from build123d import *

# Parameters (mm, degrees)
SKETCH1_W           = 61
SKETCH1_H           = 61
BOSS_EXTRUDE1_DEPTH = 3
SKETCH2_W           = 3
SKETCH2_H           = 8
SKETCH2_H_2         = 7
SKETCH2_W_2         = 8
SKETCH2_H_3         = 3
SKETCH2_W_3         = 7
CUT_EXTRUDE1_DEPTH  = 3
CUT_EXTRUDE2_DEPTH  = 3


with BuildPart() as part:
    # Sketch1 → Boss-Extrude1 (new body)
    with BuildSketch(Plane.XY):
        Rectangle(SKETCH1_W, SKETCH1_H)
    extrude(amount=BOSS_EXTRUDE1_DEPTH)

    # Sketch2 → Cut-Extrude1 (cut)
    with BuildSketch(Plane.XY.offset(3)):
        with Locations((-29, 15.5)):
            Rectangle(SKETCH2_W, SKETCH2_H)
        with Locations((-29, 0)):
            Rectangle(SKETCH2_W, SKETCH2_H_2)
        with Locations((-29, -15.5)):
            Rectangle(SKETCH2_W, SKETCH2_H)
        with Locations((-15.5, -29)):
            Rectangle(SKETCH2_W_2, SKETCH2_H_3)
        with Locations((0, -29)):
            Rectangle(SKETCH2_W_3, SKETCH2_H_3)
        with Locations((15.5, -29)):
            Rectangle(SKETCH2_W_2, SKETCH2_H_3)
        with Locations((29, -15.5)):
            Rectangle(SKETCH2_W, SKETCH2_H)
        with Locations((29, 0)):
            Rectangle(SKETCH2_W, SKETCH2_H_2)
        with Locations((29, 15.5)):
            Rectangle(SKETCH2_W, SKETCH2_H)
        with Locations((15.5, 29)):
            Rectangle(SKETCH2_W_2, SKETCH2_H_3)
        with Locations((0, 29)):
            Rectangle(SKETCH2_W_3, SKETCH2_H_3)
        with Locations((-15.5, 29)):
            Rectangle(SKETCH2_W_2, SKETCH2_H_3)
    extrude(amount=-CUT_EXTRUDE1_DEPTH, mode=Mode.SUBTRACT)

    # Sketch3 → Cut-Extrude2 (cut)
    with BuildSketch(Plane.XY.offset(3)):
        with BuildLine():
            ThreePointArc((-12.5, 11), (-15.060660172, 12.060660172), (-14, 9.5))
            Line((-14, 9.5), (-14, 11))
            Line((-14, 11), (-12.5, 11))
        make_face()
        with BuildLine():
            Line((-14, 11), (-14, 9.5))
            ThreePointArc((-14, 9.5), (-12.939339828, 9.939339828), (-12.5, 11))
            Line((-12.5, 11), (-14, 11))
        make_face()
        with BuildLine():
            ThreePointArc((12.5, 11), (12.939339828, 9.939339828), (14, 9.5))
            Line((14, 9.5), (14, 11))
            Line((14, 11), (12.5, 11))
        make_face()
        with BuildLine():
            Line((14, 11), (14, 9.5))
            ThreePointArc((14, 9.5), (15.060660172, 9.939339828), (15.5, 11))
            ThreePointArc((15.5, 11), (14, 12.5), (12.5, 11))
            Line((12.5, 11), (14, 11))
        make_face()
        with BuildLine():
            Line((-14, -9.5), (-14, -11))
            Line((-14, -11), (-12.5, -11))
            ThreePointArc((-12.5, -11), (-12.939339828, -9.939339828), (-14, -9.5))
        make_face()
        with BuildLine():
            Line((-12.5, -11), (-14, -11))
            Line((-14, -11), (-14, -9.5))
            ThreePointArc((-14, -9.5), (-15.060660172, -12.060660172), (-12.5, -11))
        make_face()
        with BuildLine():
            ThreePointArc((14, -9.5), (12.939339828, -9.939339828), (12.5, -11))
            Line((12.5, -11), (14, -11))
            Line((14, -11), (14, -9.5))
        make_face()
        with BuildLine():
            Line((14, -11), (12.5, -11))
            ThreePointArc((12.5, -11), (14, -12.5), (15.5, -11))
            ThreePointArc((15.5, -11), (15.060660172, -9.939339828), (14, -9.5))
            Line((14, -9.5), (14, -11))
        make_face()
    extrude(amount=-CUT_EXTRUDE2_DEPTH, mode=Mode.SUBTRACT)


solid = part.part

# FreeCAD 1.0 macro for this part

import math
import FreeCAD as App
import Part
import Sketcher
from FreeCAD import Vector
Q = App.Units.Quantity


def add_polygon(sketch, points):
    """Adds a closed chain of lines whose ends are joined by coincident constraints."""
    first, n = sketch.GeometryCount, len(points)
    for a, b in zip(points, points[1:] + points[:1]):
        sketch.addGeometry(Part.LineSegment(App.Vector(*a, 0), App.Vector(*b, 0)), False)
    for i in range(n):
        sketch.addConstraint(Sketcher.Constraint("Coincident", first + i, 2, first + (i + 1) % n, 1))

doc = App.newDocument("Part")
params = doc.addObject("Spreadsheet::Sheet", "Params")
for row, (alias, value) in enumerate([
    ("sketch1_width", "61 mm"),
    ("pad1_length", "3 mm"),
    ("sketch2_width", "3 mm"),
    ("sketch2_width2", "8 mm"),
    ("sketch2_width3", "7 mm"),
    ("pocket1_length", "3 mm"),
    ("sketch3_radius", "1.5 mm"),
    ("pocket2_length", "3 mm"),
], start=1):
    params.set(f"A{row}", alias)
    params.set(f"B{row}", "=" + value)
    params.setAlias(f"B{row}", alias)

body = doc.addObject("PartDesign::Body", "Body")

# Sketch on XY plane
sketch1 = doc.addObject("Sketcher::SketchObject", "Sketch")
body.addObject(sketch1)
sketch1.AttachmentSupport = (doc.XY_Plane, [""])
sketch1.MapMode = "FlatFace"
add_polygon(sketch1, [(-30, 30), (-30, -30), (30, -30), (30, 30)])  # lines 0-3
sketch1.addConstraint(Sketcher.Constraint("Vertical", 0))
sketch1.addConstraint(Sketcher.Constraint("Horizontal", 1))
sketch1.addConstraint(Sketcher.Constraint("Vertical", 2))
sketch1.addConstraint(Sketcher.Constraint("Horizontal", 3))
sketch1.addConstraint(Sketcher.Constraint("Symmetric", 0, 2, 2, 2, -1, 1))
sketch1.addConstraint(Sketcher.Constraint("Equal", 3, 0))
sketch1.addConstraint(Sketcher.Constraint("DistanceX", 1, 1, 1, 2, Q("61 mm")))
sketch1.setExpression("Constraints[10]", "Params.sketch1_width")
pad1 = doc.addObject("PartDesign::Pad", "Pad")
body.addObject(pad1)
pad1.Profile = sketch1
pad1.setExpression("Length", "Params.pad1_length")

# Sketch on XY plane
sketch2 = doc.addObject("Sketcher::SketchObject", "Sketch001")
body.addObject(sketch2)
sketch2.AttachmentSupport = (doc.XY_Plane, [""])
sketch2.MapMode = "FlatFace"
sketch2.AttachmentOffset = App.Placement(Vector(0, 0, 3), App.Rotation())
add_polygon(sketch2, [(-30.5, 19.5), (-30.5, 11.5), (-27.5, 11.5), (-27.5, 19.5)])  # lines 0-3
add_polygon(sketch2, [(-30.5, 3.5), (-30.5, -3.5), (-27.5, -3.5), (-27.5, 3.5)])  # lines 4-7
add_polygon(sketch2, [(-30.5, -11.5), (-30.5, -19.5), (-27.5, -19.5), (-27.5, -11.5)])  # lines 8-11
add_polygon(sketch2, [(-19.5, -27.5), (-19.5, -30.5), (-11.5, -30.5), (-11.5, -27.5)])  # lines 12-15
add_polygon(sketch2, [(-3.5, -27.5), (-3.5, -30.5), (3.5, -30.5), (3.5, -27.5)])  # lines 16-19
add_polygon(sketch2, [(11.5, -27.5), (11.5, -30.5), (19.5, -30.5), (19.5, -27.5)])  # lines 20-23
add_polygon(sketch2, [(27.5, -11.5), (27.5, -19.5), (30.5, -19.5), (30.5, -11.5)])  # lines 24-27
add_polygon(sketch2, [(27.5, 3.5), (27.5, -3.5), (30.5, -3.5), (30.5, 3.5)])  # lines 28-31
add_polygon(sketch2, [(27.5, 19.5), (27.5, 11.5), (30.5, 11.5), (30.5, 19.5)])  # lines 32-35
add_polygon(sketch2, [(11.5, 30.5), (11.5, 27.5), (19.5, 27.5), (19.5, 30.5)])  # lines 36-39
add_polygon(sketch2, [(-3.5, 30.5), (-3.5, 27.5), (3.5, 27.5), (3.5, 30.5)])  # lines 40-43
add_polygon(sketch2, [(-19.5, 30.5), (-19.5, 27.5), (-11.5, 27.5), (-11.5, 30.5)])  # lines 44-47
sketch2.addConstraint(Sketcher.Constraint("Vertical", 0))
sketch2.addConstraint(Sketcher.Constraint("Horizontal", 1))
sketch2.addConstraint(Sketcher.Constraint("Vertical", 2))
sketch2.addConstraint(Sketcher.Constraint("Horizontal", 3))
sketch2.addConstraint(Sketcher.Constraint("Vertical", 4))
sketch2.addConstraint(Sketcher.Constraint("Horizontal", 5))
sketch2.addConstraint(Sketcher.Constraint("Vertical", 6))
sketch2.addConstraint(Sketcher.Constraint("Horizontal", 7))
sketch2.addConstraint(Sketcher.Constraint("Vertical", 8))
sketch2.addConstraint(Sketcher.Constraint("Horizontal", 9))
sketch2.addConstraint(Sketcher.Constraint("Vertical", 10))
sketch2.addConstraint(Sketcher.Constraint("Horizontal", 11))
sketch2.addConstraint(Sketcher.Constraint("Vertical", 12))
sketch2.addConstraint(Sketcher.Constraint("Horizontal", 13))
sketch2.addConstraint(Sketcher.Constraint("Vertical", 14))
sketch2.addConstraint(Sketcher.Constraint("Horizontal", 15))
sketch2.addConstraint(Sketcher.Constraint("Vertical", 16))
sketch2.addConstraint(Sketcher.Constraint("Horizontal", 17))
sketch2.addConstraint(Sketcher.Constraint("Vertical", 18))
sketch2.addConstraint(Sketcher.Constraint("Horizontal", 19))
sketch2.addConstraint(Sketcher.Constraint("Vertical", 20))
sketch2.addConstraint(Sketcher.Constraint("Horizontal", 21))
sketch2.addConstraint(Sketcher.Constraint("Vertical", 22))
sketch2.addConstraint(Sketcher.Constraint("Horizontal", 23))
sketch2.addConstraint(Sketcher.Constraint("Vertical", 24))
sketch2.addConstraint(Sketcher.Constraint("Horizontal", 25))
sketch2.addConstraint(Sketcher.Constraint("Vertical", 26))
sketch2.addConstraint(Sketcher.Constraint("Horizontal", 27))
sketch2.addConstraint(Sketcher.Constraint("Vertical", 28))
sketch2.addConstraint(Sketcher.Constraint("Horizontal", 29))
sketch2.addConstraint(Sketcher.Constraint("Vertical", 30))
sketch2.addConstraint(Sketcher.Constraint("Horizontal", 31))
sketch2.addConstraint(Sketcher.Constraint("Vertical", 32))
sketch2.addConstraint(Sketcher.Constraint("Horizontal", 33))
sketch2.addConstraint(Sketcher.Constraint("Vertical", 34))
sketch2.addConstraint(Sketcher.Constraint("Horizontal", 35))
sketch2.addConstraint(Sketcher.Constraint("Vertical", 36))
sketch2.addConstraint(Sketcher.Constraint("Horizontal", 37))
sketch2.addConstraint(Sketcher.Constraint("Vertical", 38))
sketch2.addConstraint(Sketcher.Constraint("Horizontal", 39))
sketch2.addConstraint(Sketcher.Constraint("Vertical", 40))
sketch2.addConstraint(Sketcher.Constraint("Horizontal", 41))
sketch2.addConstraint(Sketcher.Constraint("Vertical", 42))
sketch2.addConstraint(Sketcher.Constraint("Horizontal", 43))
sketch2.addConstraint(Sketcher.Constraint("Vertical", 44))
sketch2.addConstraint(Sketcher.Constraint("Horizontal", 45))
sketch2.addConstraint(Sketcher.Constraint("Vertical", 46))
sketch2.addConstraint(Sketcher.Constraint("Horizontal", 47))
sketch2.addConstraint(Sketcher.Constraint("Symmetric", 2, 2, 24, 2, -1, 1))
sketch2.addConstraint(Sketcher.Constraint("Symmetric", 0, 2, 26, 2, -1, 1))
sketch2.addConstraint(Sketcher.Constraint("Symmetric", 6, 2, 28, 2, -1, 1))
sketch2.addConstraint(Sketcher.Constraint("Symmetric", 4, 2, 30, 2, -1, 1))
sketch2.addConstraint(Sketcher.Constraint("Symmetric", 10, 2, 32, 2, -1, 1))
sketch2.addConstraint(Sketcher.Constraint("Symmetric", 8, 2, 34, 2, -1, 1))
sketch2.addConstraint(Sketcher.Constraint("Symmetric", 14, 2, 36, 2, -1, 1))
sketch2.addConstraint(Sketcher.Constraint("Symmetric", 12, 2, 38, 2, -1, 1))
sketch2.addConstraint(Sketcher.Constraint("Symmetric", 18, 2, 40, 2, -1, 1))
sketch2.addConstraint(Sketcher.Constraint("Symmetric", 16, 2, 42, 2, -1, 1))
sketch2.addConstraint(Sketcher.Constraint("Symmetric", 22, 2, 44, 2, -1, 1))
sketch2.addConstraint(Sketcher.Constraint("Symmetric", 20, 2, 46, 2, -1, 1))
sketch2.addConstraint(Sketcher.Constraint("Symmetric", 13, 2, 20, 2, -2))
sketch2.addConstraint(Sketcher.Constraint("Symmetric", 15, 2, 22, 2, -2))
sketch2.addConstraint(Sketcher.Constraint("Symmetric", 9, 2, 24, 2, -2))
sketch2.addConstraint(Sketcher.Constraint("Symmetric", 11, 2, 26, 2, -2))
sketch2.addConstraint(Sketcher.Constraint("Horizontal", 13, 2, 16, 2))
sketch2.addConstraint(Sketcher.Constraint("Horizontal", 15, 2, 18, 2))
sketch2.addConstraint(Sketcher.Constraint("Horizontal", 5, 2, 28, 2))
sketch2.addConstraint(Sketcher.Constraint("Vertical", 3, 2, 4, 2))
sketch2.addConstraint(Sketcher.Constraint("Vertical", 2, 2, 5, 2))
sketch2.addConstraint(Sketcher.Constraint("Vertical", 19, 2, 40, 2))
sketch2.addConstraint(Sketcher.Constraint("Equal", 47, 0))
sketch2.addConstraint(Sketcher.Constraint("Equal", 43, 4))
sketch2.addConstraint(Sketcher.Constraint("Equal", 35, 12))
sketch2.addConstraint(Sketcher.Constraint("DistanceX", 1, 1, 1, 2, Q("3 mm")))
sketch2.addConstraint(Sketcher.Constraint("DistanceX", 13, 1, 13, 2, Q("8 mm")))
sketch2.addConstraint(Sketcher.Constraint("DistanceX", 17, 1, 17, 2, Q("7 mm")))
sketch2.addConstraint(Sketcher.Constraint("DistanceY", 4, 2, 0, 2, Q("15 mm")))
sketch2.addConstraint(Sketcher.Constraint("DistanceX", 9, 2, 12, 2, Q("8 mm")))
sketch2.addConstraint(Sketcher.Constraint("DistanceY", 12, 2, 9, 2, Q("11 mm")))
sketch2.addConstraint(Sketcher.Constraint("DistanceX", 13, 2, 16, 2, Q("8 mm")))
sketch2.setExpression("Constraints[121]", "Params.sketch2_width")
sketch2.setExpression("Constraints[122]", "Params.sketch2_width2")
sketch2.setExpression("Constraints[123]", "Params.sketch2_width3")
pocket1 = doc.addObject("PartDesign::Pocket", "Pocket")
body.addObject(pocket1)
pocket1.Profile = sketch2
pocket1.setExpression("Length", "Params.pocket1_length")

# Sketch on XY plane
sketch3 = doc.addObject("Sketcher::SketchObject", "Sketch002")
body.addObject(sketch3)
sketch3.AttachmentSupport = (doc.XY_Plane, [""])
sketch3.MapMode = "FlatFace"
sketch3.AttachmentOffset = App.Placement(Vector(0, 0, 3), App.Rotation())
sketch3.addGeometry(Part.ArcOfCircle(Part.Circle(Vector(-14, 11, 0), Vector(0, 0, 1), 1.5), math.radians(0), math.radians(270)), False)
sketch3.addGeometry(Part.ArcOfCircle(Part.Circle(Vector(-14, 11, 0), Vector(0, 0, 1), 1.5), math.radians(-90), math.radians(0)), False)
sketch3.addGeometry(Part.ArcOfCircle(Part.Circle(Vector(14, 11, 0), Vector(0, 0, 1), 1.5), math.radians(180), math.radians(270)), False)
sketch3.addGeometry(Part.ArcOfCircle(Part.Circle(Vector(14, 11, 0), Vector(0, 0, 1), 1.5), math.radians(-90), math.radians(0)), False)
sketch3.addGeometry(Part.ArcOfCircle(Part.Circle(Vector(14, 11, 0), Vector(0, 0, 1), 1.5), math.radians(0), math.radians(180)), False)
sketch3.addGeometry(Part.ArcOfCircle(Part.Circle(Vector(-14, -11, 0), Vector(0, 0, 1), 1.5), math.radians(0), math.radians(90)), False)
sketch3.addGeometry(Part.ArcOfCircle(Part.Circle(Vector(-14, -11, 0), Vector(0, 0, 1), 1.5), math.radians(90), math.radians(360)), False)
sketch3.addGeometry(Part.ArcOfCircle(Part.Circle(Vector(14, -11, 0), Vector(0, 0, 1), 1.5), math.radians(90), math.radians(180)), False)
sketch3.addGeometry(Part.ArcOfCircle(Part.Circle(Vector(14, -11, 0), Vector(0, 0, 1), 1.5), math.radians(180), math.radians(360)), False)
sketch3.addGeometry(Part.ArcOfCircle(Part.Circle(Vector(14, -11, 0), Vector(0, 0, 1), 1.5), math.radians(0), math.radians(90)), False)
sketch3.addConstraint(Sketcher.Constraint("Tangent", 0, 1, 1, 2))
sketch3.addConstraint(Sketcher.Constraint("Coincident", 1, 1, 0, 2))
sketch3.addConstraint(Sketcher.Constraint("Tangent", 2, 2, 3, 1))
sketch3.addConstraint(Sketcher.Constraint("Tangent", 3, 2, 4, 1))
sketch3.addConstraint(Sketcher.Constraint("Tangent", 4, 2, 2, 1))
sketch3.addConstraint(Sketcher.Constraint("Tangent", 5, 1, 6, 2))
sketch3.addConstraint(Sketcher.Constraint("Coincident", 6, 1, 5, 2))
sketch3.addConstraint(Sketcher.Constraint("Tangent", 7, 2, 8, 1))
sketch3.addConstraint(Sketcher.Constraint("Tangent", 8, 2, 9, 1))
sketch3.addConstraint(Sketcher.Constraint("Tangent", 9, 2, 7, 1))
sketch3.addConstraint(Sketcher.Constraint("Equal", 1, 2))
sketch3.addConstraint(Sketcher.Constraint("Equal", 4, 5))
sketch3.addConstraint(Sketcher.Constraint("Equal", 6, 7))
sketch3.addConstraint(Sketcher.Constraint("Symmetric", 2, 3, 5, 3, -1, 1))
sketch3.addConstraint(Sketcher.Constraint("Symmetric", 0, 3, 7, 3, -1, 1))
sketch3.addConstraint(Sketcher.Constraint("Symmetric", 0, 3, 2, 3, -2))
sketch3.addConstraint(Sketcher.Constraint("Horizontal", 4, 3, 0, 1))
sketch3.addConstraint(Sketcher.Constraint("Horizontal", 0, 1, 3, 2))
sketch3.addConstraint(Sketcher.Constraint("Horizontal", 3, 2, 4, 2))
sketch3.addConstraint(Sketcher.Constraint("Horizontal", 9, 3, 5, 1))
sketch3.addConstraint(Sketcher.Constraint("Horizontal", 5, 1, 7, 2))
sketch3.addConstraint(Sketcher.Constraint("Horizontal", 7, 2, 8, 2))
sketch3.addConstraint(Sketcher.Constraint("Vertical", 6, 3, 1, 1))
sketch3.addConstraint(Sketcher.Constraint("Vertical", 9, 3, 2, 2))
sketch3.addConstraint(Sketcher.Constraint("Vertical", 1, 1, 6, 1))
sketch3.addConstraint(Sketcher.Constraint("Vertical", 2, 2, 9, 2))
sketch3.addConstraint(Sketcher.Constraint("Radius", 0, Q("1.5 mm")))
sketch3.addConstraint(Sketcher.Constraint("DistanceX", 0, 3, -1, 1, Q("14 mm")))
sketch3.addConstraint(Sketcher.Constraint("DistanceY", -1, 1, 0, 3, Q("11 mm")))
sketch3.setExpression("Constraints[26]", "Params.sketch3_radius")
pocket2 = doc.addObject("PartDesign::Pocket", "Pocket001")
body.addObject(pocket2)
pocket2.Profile = sketch3
pocket2.setExpression("Length", "Params.pocket2_length")

doc.recompute()
